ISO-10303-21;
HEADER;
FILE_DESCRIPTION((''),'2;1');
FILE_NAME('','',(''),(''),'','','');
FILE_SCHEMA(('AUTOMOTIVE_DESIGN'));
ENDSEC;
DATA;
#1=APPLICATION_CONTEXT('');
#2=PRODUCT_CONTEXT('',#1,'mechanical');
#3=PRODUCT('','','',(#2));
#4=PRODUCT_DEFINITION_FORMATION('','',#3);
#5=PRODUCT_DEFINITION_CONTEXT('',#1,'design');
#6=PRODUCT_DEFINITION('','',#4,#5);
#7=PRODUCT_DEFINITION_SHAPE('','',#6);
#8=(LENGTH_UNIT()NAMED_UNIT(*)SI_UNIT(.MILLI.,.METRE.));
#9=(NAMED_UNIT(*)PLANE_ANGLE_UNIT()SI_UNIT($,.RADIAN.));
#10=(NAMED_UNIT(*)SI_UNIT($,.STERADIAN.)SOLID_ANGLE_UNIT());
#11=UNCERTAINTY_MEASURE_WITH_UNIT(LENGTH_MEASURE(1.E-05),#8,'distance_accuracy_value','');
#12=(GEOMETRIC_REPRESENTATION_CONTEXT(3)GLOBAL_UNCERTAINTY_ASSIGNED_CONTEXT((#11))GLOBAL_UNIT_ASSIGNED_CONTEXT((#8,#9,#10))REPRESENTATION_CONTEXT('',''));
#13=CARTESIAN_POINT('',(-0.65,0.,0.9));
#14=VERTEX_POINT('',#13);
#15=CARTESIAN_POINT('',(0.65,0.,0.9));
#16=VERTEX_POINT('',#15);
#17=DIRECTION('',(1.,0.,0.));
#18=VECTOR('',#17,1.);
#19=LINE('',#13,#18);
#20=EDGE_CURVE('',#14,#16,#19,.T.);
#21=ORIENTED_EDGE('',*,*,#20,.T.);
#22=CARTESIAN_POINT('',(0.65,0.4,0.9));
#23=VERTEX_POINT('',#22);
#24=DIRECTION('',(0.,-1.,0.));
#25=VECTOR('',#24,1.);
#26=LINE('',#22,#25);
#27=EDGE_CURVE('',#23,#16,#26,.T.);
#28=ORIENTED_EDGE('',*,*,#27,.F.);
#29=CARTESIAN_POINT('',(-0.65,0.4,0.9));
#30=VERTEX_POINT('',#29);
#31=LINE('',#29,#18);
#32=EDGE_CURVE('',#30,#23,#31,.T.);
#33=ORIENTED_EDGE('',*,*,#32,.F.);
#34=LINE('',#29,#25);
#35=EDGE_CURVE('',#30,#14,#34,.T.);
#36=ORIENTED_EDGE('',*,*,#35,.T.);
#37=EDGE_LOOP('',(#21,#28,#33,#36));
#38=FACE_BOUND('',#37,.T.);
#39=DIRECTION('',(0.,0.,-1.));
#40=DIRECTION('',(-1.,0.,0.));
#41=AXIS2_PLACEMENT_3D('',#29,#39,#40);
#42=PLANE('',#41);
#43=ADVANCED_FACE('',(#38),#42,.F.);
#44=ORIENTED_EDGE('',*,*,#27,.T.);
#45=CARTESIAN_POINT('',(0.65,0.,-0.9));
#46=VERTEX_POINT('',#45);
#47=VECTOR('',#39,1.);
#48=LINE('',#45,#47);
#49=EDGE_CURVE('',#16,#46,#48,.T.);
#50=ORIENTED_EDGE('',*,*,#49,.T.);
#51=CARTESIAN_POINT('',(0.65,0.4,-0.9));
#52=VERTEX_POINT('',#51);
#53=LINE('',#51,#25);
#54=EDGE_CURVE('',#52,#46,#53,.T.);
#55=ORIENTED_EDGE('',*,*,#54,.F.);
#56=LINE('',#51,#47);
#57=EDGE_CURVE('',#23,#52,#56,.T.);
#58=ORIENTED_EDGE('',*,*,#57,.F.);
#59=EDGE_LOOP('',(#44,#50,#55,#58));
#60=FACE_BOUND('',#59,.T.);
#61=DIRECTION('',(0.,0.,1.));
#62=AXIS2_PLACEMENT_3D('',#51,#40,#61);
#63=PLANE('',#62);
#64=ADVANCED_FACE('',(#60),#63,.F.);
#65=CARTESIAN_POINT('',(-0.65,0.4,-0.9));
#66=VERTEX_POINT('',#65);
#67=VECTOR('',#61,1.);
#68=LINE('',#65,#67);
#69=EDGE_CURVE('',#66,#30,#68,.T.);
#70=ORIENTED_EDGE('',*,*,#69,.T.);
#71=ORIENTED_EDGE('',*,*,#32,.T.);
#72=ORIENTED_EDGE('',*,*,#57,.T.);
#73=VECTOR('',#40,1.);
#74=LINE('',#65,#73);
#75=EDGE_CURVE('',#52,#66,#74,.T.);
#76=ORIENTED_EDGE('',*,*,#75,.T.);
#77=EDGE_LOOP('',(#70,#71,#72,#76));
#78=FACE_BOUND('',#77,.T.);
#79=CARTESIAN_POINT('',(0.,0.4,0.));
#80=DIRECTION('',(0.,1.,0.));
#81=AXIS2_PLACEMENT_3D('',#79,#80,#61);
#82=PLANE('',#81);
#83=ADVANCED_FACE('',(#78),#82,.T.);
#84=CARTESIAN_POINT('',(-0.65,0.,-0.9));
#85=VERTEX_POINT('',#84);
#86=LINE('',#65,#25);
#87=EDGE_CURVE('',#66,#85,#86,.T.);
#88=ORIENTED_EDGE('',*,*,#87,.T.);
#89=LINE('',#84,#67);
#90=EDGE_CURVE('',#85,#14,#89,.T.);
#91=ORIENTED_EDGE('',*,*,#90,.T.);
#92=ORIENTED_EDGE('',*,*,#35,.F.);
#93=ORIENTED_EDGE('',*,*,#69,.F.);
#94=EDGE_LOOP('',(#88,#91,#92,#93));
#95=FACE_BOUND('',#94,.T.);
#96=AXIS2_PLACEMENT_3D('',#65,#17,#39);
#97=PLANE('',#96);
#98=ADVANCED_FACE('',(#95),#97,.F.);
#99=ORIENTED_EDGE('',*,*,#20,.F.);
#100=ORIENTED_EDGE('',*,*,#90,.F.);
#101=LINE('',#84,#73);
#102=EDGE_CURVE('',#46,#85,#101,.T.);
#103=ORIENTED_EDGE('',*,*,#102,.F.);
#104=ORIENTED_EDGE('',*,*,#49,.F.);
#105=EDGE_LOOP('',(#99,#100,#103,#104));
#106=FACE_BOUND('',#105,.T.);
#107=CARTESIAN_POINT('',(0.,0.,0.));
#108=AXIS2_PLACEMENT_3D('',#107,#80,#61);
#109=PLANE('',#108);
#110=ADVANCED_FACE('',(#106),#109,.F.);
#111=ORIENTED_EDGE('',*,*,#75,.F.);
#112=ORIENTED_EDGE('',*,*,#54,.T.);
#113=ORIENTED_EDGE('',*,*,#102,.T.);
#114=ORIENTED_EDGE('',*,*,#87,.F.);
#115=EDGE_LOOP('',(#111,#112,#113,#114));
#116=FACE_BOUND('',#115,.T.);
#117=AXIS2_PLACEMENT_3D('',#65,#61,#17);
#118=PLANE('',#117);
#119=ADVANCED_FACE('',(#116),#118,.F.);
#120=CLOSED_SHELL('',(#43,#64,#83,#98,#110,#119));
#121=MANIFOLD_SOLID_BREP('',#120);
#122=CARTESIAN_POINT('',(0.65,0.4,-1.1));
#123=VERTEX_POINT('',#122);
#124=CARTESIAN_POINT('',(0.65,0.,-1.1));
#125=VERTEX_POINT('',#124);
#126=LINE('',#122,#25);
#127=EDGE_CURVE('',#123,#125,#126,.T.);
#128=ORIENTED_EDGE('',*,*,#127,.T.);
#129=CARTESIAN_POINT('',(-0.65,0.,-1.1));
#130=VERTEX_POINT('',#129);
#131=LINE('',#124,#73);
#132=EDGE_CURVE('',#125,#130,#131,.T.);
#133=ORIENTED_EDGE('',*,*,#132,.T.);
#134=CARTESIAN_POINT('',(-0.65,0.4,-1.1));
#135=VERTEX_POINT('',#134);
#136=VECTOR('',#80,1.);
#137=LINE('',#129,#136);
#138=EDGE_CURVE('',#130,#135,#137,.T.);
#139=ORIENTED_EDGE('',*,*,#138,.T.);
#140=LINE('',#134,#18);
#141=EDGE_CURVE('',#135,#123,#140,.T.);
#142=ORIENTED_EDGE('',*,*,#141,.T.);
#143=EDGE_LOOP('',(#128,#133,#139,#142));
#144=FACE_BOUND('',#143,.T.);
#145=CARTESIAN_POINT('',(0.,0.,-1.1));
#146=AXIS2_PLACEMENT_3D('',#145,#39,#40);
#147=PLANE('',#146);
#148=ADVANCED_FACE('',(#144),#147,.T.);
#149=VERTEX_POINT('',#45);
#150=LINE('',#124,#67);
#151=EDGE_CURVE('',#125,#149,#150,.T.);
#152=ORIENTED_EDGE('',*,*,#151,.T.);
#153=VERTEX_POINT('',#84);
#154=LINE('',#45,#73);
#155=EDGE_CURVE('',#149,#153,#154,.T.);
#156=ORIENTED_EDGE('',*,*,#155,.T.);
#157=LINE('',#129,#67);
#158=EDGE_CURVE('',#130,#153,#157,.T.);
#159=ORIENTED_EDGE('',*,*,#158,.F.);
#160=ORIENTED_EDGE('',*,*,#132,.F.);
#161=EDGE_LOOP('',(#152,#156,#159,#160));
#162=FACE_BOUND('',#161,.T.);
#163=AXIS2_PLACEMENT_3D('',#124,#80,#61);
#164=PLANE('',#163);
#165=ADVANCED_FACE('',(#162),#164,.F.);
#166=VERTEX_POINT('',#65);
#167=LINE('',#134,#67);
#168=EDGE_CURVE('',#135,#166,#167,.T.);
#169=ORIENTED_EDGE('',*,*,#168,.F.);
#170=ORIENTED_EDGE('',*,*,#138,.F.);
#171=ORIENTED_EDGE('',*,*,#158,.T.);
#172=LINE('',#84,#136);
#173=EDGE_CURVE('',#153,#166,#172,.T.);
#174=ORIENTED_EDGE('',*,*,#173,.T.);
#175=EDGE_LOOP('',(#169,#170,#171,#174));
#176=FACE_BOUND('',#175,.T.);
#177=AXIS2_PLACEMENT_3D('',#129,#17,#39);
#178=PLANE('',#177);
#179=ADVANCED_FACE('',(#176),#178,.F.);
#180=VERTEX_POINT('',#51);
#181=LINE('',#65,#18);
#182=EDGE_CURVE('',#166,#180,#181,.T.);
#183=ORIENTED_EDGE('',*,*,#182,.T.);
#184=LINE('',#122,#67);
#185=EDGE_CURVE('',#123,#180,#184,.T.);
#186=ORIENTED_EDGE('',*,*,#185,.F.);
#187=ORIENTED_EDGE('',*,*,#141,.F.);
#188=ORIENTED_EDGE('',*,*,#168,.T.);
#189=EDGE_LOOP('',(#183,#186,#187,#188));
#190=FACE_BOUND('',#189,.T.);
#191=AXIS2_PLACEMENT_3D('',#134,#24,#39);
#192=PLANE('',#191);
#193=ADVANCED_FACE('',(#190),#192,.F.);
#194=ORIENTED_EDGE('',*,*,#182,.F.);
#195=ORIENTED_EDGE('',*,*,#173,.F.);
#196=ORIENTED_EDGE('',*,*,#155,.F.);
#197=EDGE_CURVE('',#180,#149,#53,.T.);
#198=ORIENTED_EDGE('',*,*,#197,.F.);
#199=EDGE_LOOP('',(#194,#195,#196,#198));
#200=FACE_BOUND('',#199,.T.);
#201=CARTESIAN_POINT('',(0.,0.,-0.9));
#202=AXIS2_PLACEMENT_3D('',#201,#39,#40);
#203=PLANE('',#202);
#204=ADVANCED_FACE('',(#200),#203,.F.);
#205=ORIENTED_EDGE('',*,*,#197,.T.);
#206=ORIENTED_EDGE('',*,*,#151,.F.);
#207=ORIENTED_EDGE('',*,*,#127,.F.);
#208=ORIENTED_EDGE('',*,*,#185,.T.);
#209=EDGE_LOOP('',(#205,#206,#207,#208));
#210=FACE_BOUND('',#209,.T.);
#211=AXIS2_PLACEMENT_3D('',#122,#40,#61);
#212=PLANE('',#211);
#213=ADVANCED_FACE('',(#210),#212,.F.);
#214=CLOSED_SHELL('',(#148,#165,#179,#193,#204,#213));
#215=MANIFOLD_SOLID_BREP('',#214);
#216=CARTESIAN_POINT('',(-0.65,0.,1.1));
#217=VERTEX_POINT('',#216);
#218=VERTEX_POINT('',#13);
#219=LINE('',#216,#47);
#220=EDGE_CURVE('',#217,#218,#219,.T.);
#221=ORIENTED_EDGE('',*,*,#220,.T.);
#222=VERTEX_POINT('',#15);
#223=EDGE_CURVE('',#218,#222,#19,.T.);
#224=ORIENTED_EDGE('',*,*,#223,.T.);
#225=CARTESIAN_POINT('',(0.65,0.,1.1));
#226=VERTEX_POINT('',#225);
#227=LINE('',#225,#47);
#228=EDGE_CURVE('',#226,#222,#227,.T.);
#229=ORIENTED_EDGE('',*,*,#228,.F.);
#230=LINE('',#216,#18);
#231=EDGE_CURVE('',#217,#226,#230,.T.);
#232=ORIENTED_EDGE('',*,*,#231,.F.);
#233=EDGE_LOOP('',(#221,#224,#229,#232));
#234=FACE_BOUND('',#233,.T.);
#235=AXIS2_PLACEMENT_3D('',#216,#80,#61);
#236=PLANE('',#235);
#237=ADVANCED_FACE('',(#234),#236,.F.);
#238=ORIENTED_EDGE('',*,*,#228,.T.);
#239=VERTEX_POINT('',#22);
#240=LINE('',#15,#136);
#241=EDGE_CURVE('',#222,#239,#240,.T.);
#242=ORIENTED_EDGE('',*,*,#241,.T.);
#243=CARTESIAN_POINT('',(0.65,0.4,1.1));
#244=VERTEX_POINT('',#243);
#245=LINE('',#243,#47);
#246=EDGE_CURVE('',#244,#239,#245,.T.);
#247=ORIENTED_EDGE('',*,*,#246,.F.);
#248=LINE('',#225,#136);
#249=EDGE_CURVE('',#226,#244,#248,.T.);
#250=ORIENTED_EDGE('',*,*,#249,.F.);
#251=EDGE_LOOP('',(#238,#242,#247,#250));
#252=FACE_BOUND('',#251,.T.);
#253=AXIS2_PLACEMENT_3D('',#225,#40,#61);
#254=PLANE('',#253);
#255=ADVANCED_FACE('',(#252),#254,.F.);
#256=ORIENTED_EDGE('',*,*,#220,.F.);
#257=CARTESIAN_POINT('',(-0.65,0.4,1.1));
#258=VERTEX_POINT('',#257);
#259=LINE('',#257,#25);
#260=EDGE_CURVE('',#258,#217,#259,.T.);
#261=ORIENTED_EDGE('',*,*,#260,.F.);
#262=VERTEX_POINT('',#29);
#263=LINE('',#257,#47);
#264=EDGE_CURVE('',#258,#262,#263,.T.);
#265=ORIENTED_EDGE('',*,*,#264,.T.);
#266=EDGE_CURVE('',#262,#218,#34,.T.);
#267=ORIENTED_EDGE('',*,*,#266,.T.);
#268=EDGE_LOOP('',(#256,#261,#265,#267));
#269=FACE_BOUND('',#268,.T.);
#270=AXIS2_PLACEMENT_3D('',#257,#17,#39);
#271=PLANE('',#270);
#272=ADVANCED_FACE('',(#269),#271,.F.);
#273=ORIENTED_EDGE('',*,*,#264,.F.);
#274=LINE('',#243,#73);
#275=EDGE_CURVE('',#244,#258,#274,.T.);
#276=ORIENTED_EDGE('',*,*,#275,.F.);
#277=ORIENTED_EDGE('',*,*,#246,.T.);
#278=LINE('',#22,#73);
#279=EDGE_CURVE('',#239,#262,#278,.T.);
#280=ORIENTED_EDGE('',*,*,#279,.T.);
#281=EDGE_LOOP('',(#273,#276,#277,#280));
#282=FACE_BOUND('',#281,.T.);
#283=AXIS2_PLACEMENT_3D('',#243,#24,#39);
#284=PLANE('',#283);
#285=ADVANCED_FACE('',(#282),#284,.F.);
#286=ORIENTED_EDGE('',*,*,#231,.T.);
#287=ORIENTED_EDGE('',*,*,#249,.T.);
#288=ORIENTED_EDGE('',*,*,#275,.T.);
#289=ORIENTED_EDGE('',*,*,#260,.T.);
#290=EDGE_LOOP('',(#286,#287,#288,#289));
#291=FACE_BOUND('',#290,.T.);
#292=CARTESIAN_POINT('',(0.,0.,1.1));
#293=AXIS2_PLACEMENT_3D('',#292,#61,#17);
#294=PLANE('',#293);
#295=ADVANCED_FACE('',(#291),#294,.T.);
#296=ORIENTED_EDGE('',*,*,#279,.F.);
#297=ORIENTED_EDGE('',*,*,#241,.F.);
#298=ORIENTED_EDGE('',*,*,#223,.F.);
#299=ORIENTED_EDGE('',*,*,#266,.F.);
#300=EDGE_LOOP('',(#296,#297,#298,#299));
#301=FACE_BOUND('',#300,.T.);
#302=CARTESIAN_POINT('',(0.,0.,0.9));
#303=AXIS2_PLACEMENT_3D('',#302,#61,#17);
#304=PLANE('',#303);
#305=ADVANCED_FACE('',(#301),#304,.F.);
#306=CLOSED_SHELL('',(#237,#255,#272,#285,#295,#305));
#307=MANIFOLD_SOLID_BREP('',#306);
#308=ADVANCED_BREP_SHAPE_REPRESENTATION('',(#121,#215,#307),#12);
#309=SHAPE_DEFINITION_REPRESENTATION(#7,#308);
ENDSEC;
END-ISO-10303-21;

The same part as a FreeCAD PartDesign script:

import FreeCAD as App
import Part
import Sketcher
Q = App.Units.Quantity

doc = App.newDocument("Part")
params = doc.addObject("Spreadsheet::Sheet", "Params")
for row, (alias, value) in enumerate([
    ("sketch1_width", "1.3 mm"),
    ("sketch1_height", "1.8 mm"),
    ("pad1_length", "0.4 mm"),
    ("sketch2_width", "1.3 mm"),
    ("sketch2_height", "0.4 mm"),
    ("pad2_length", "0.2 mm"),
    ("sketch3_width", "1.3 mm"),
    ("sketch3_height", "0.4 mm"),
    ("pad3_length", "0.2 mm"),
], start=1):
    params.set(f"A{row}", alias)
    params.set(f"B{row}", "=" + value)
    params.setAlias(f"B{row}", alias)

body = doc.addObject("PartDesign::Body", "Body")

# Sketch on XZ plane
sketch1 = doc.addObject("Sketcher::SketchObject", "Sketch")
body.addObject(sketch1)
sketch1.AttachmentSupport = (doc.XZ_Plane, [""])
sketch1.MapMode = "FlatFace"
sketch1.addGeometry([
    Part.LineSegment(App.Vector(-0.65, -0.9, 0), App.Vector(-0.65, 0.9, 0)),
    Part.LineSegment(App.Vector(-0.65, 0.9, 0), App.Vector(0.65, 0.9, 0)),
    Part.LineSegment(App.Vector(0.65, 0.9, 0), App.Vector(0.65, -0.9, 0)),
    Part.LineSegment(App.Vector(0.65, -0.9, 0), App.Vector(-0.65, -0.9, 0)),
], False)
sketch1.addConstraint([
    Sketcher.Constraint("Coincident", 0, 2, 1, 1),
    Sketcher.Constraint("Coincident", 1, 2, 2, 1),
    Sketcher.Constraint("Coincident", 2, 2, 3, 1),
    Sketcher.Constraint("Coincident", 3, 2, 0, 1),
    Sketcher.Constraint("Vertical", 0),
    Sketcher.Constraint("Horizontal", 1),
    Sketcher.Constraint("Vertical", 2),
    Sketcher.Constraint("Horizontal", 3),
    Sketcher.Constraint("Symmetric", 0, 2, 2, 2, -1, 1),
    Sketcher.Constraint("DistanceX", 1, 1, 1, 2, Q("1.3 mm")),
    Sketcher.Constraint("DistanceY", 0, 1, 0, 2, Q("1.8 mm")),
])
sketch1.setExpression("Constraints[9]", "Params.sketch1_width")
sketch1.setExpression("Constraints[10]", "Params.sketch1_height")
pad1 = doc.addObject("PartDesign::Pad", "Pad")
body.addObject(pad1)
pad1.Profile = sketch1
pad1.setExpression("Length", "Params.pad1_length")
pad1.Reversed = True
body2 = doc.addObject("PartDesign::Body", "Body001")

# Sketch on XY plane
sketch2 = doc.addObject("Sketcher::SketchObject", "Sketch001")
body2.addObject(sketch2)
sketch2.AttachmentSupport = (doc.getObject("XY_Plane001"), [""])
sketch2.MapMode = "FlatFace"
sketch2.AttachmentOffset = App.Placement(App.Vector(0, 0, 0.9), App.Rotation())
sketch2.addGeometry([
    Part.LineSegment(App.Vector(-0.65, 0.4, 0), App.Vector(-0.65, 0, 0)),
    Part.LineSegment(App.Vector(-0.65, 0, 0), App.Vector(0.65, 0, 0)),
    Part.LineSegment(App.Vector(0.65, 0, 0), App.Vector(0.65, 0.4, 0)),
    Part.LineSegment(App.Vector(0.65, 0.4, 0), App.Vector(-0.65, 0.4, 0)),
], False)
sketch2.addConstraint([
    Sketcher.Constraint("Coincident", 0, 2, 1, 1),
    Sketcher.Constraint("Coincident", 1, 2, 2, 1),
    Sketcher.Constraint("Coincident", 2, 2, 3, 1),
    Sketcher.Constraint("Coincident", 3, 2, 0, 1),
    Sketcher.Constraint("Vertical", 0),
    Sketcher.Constraint("Horizontal", 1),
    Sketcher.Constraint("Vertical", 2),
    Sketcher.Constraint("Horizontal", 3),
    Sketcher.Constraint("Symmetric", 0, 2, 1, 2, -1, 1),
    Sketcher.Constraint("DistanceX", 1, 1, 1, 2, Q("1.3 mm")),
    Sketcher.Constraint("DistanceY", 0, 2, 0, 1, Q("0.4 mm")),
])
sketch2.setExpression("Constraints[9]", "Params.sketch2_width")
sketch2.setExpression("Constraints[10]", "Params.sketch2_height")
pad2 = doc.addObject("PartDesign::Pad", "Pad001")
body2.addObject(pad2)
pad2.Profile = sketch2
pad2.setExpression("Length", "Params.pad2_length")
body3 = doc.addObject("PartDesign::Body", "Body002")

# Sketch on XY plane
sketch3 = doc.addObject("Sketcher::SketchObject", "Sketch002")
body3.addObject(sketch3)
sketch3.AttachmentSupport = (doc.getObject("XY_Plane002"), [""])
sketch3.MapMode = "FlatFace"
sketch3.AttachmentOffset = App.Placement(App.Vector(0, 0, -0.9), App.Rotation())
sketch3.addGeometry([
    Part.LineSegment(App.Vector(0.65, 0.4, 0), App.Vector(0.65, 0, 0)),
    Part.LineSegment(App.Vector(0.65, 0, 0), App.Vector(-0.65, 0, 0)),
    Part.LineSegment(App.Vector(-0.65, 0, 0), App.Vector(-0.65, 0.4, 0)),
    Part.LineSegment(App.Vector(-0.65, 0.4, 0), App.Vector(0.65, 0.4, 0)),
], False)
sketch3.addConstraint([
    Sketcher.Constraint("Coincident", 0, 2, 1, 1),
    Sketcher.Constraint("Coincident", 1, 2, 2, 1),
    Sketcher.Constraint("Coincident", 2, 2, 3, 1),
    Sketcher.Constraint("Coincident", 3, 2, 0, 1),
    Sketcher.Constraint("Vertical", 0),
    Sketcher.Constraint("Horizontal", 1),
    Sketcher.Constraint("Vertical", 2),
    Sketcher.Constraint("Horizontal", 3),
    Sketcher.Constraint("Symmetric", 0, 2, 1, 2, -1, 1),
    Sketcher.Constraint("DistanceX", 1, 2, 1, 1, Q("1.3 mm")),
    Sketcher.Constraint("DistanceY", 0, 2, 0, 1, Q("0.4 mm")),
])
sketch3.setExpression("Constraints[9]", "Params.sketch3_width")
sketch3.setExpression("Constraints[10]", "Params.sketch3_height")
pad3 = doc.addObject("PartDesign::Pad", "Pad002")
body3.addObject(pad3)
pad3.Profile = sketch3
pad3.setExpression("Length", "Params.pad3_length")
pad3.Reversed = True

doc.recompute()
